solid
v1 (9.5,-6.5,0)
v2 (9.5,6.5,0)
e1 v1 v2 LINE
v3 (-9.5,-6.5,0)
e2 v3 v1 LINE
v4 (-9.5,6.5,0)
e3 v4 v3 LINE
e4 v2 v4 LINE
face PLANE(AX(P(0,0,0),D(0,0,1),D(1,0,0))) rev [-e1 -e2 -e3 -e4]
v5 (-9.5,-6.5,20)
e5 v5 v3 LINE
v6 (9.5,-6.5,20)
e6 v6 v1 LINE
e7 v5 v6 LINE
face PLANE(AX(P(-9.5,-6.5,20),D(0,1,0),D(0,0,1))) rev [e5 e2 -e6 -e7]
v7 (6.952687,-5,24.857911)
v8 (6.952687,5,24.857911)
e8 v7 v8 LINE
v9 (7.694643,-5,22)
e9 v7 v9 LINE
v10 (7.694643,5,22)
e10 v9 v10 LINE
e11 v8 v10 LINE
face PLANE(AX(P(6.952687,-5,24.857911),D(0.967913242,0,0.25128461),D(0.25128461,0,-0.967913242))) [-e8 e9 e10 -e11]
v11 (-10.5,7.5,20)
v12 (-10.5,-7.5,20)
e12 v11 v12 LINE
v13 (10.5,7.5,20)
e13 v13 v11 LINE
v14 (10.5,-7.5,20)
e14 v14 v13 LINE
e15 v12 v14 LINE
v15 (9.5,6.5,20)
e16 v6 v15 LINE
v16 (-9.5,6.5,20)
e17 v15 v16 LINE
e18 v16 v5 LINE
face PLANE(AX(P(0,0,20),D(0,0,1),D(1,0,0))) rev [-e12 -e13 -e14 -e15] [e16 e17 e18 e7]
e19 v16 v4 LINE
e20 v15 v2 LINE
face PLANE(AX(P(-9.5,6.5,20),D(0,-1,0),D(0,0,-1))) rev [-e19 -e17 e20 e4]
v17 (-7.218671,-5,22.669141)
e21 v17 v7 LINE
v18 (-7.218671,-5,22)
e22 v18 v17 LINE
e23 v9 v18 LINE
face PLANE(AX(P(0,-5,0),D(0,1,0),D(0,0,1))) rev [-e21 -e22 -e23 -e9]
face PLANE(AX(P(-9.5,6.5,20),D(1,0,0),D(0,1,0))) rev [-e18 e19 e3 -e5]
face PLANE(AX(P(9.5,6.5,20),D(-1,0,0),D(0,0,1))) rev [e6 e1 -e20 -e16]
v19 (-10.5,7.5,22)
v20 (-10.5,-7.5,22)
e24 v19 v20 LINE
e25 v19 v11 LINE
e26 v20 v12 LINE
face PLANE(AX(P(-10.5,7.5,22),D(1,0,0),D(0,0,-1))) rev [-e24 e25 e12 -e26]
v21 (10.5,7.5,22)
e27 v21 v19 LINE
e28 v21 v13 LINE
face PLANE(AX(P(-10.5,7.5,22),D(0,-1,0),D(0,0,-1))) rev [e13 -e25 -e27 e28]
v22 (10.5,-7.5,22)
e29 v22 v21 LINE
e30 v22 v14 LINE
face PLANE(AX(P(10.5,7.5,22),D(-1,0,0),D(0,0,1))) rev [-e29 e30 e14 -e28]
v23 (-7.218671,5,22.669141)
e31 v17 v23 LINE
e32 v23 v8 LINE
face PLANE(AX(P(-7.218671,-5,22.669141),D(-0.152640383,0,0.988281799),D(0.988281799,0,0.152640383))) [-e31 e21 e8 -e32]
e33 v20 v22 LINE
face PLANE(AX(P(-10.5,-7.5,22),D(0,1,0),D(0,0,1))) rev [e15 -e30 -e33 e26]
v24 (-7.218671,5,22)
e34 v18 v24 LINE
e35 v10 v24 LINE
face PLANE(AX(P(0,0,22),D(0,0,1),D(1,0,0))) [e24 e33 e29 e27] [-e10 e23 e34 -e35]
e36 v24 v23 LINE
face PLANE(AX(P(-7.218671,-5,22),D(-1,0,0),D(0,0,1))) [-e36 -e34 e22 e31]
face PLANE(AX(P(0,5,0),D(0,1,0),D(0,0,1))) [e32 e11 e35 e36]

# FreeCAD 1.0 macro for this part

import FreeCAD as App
import Part
import Sketcher
from FreeCAD import Vector
Q = App.Units.Quantity

doc = App.newDocument("Part")
params = doc.addObject("Spreadsheet::Sheet", "Params")
for row, (alias, value) in enumerate([
    ("sketch1_width", "19 mm"),
    ("sketch1_height", "13 mm"),
    ("pad1_length", "20 mm"),
    ("sketch2_width", "21 mm"),
    ("sketch2_height", "15 mm"),
    ("pad2_length", "2 mm"),
    ("pad3_length", "5 mm"),
    ("pad3_length2", "5 mm"),
], start=1):
    params.set(f"A{row}", alias)
    params.set(f"B{row}", "=" + value)
    params.setAlias(f"B{row}", alias)

body = doc.addObject("PartDesign::Body", "Body")

# Sketch on XY plane
sketch1 = doc.addObject("Sketcher::SketchObject", "Sketch")
body.addObject(sketch1)
sketch1.AttachmentSupport = (doc.XY_Plane, [""])
sketch1.MapMode = "FlatFace"
sketch1.addGeometry(Part.LineSegment(Vector(-10, 6, 0), Vector(-10, -6, 0)), False)
sketch1.addGeometry(Part.LineSegment(Vector(-10, -6, 0), Vector(10, -6, 0)), False)
sketch1.addGeometry(Part.LineSegment(Vector(10, -6, 0), Vector(10, 6, 0)), False)
sketch1.addGeometry(Part.LineSegment(Vector(10, 6, 0), Vector(-10, 6, 0)), False)
sketch1.addConstraint(Sketcher.Constraint("Coincident", 0, 2, 1, 1))
sketch1.addConstraint(Sketcher.Constraint("Coincident", 1, 2, 2, 1))
sketch1.addConstraint(Sketcher.Constraint("Coincident", 2, 2, 3, 1))
sketch1.addConstraint(Sketcher.Constraint("Coincident", 3, 2, 0, 1))
sketch1.addConstraint(Sketcher.Constraint("Vertical", 0))
sketch1.addConstraint(Sketcher.Constraint("Horizontal", 1))
sketch1.addConstraint(Sketcher.Constraint("Vertical", 2))
sketch1.addConstraint(Sketcher.Constraint("Horizontal", 3))
sketch1.addConstraint(Sketcher.Constraint("Symmetric", 0, 2, 2, 2, -1, 1))
sketch1.addConstraint(Sketcher.Constraint("DistanceX", 1, 1, 1, 2, Q("19 mm")))
sketch1.addConstraint(Sketcher.Constraint("DistanceY", 0, 2, 0, 1, Q("13 mm")))
sketch1.setExpression("Constraints[9]", "Params.sketch1_width")
sketch1.setExpression("Constraints[10]", "Params.sketch1_height")
pad1 = doc.addObject("PartDesign::Pad", "Pad")
body.addObject(pad1)
pad1.Profile = sketch1
pad1.setExpression("Length", "Params.pad1_length")

# Sketch on XY plane
sketch2 = doc.addObject("Sketcher::SketchObject", "Sketch001")
body.addObject(sketch2)
sketch2.AttachmentSupport = (doc.XY_Plane, [""])
sketch2.MapMode = "FlatFace"
sketch2.AttachmentOffset = App.Placement(Vector(0, 0, 20), App.Rotation())
sketch2.addGeometry(Part.LineSegment(Vector(-10, 8, 0), Vector(-10, -8, 0)), False)
sketch2.addGeometry(Part.LineSegment(Vector(-10, -8, 0), Vector(10, -8, 0)), False)
sketch2.addGeometry(Part.LineSegment(Vector(10, -8, 0), Vector(10, 8, 0)), False)
sketch2.addGeometry(Part.LineSegment(Vector(10, 8, 0), Vector(-10, 8, 0)), False)
sketch2.addConstraint(Sketcher.Constraint("Coincident", 0, 2, 1, 1))
sketch2.addConstraint(Sketcher.Constraint("Coincident", 1, 2, 2, 1))
sketch2.addConstraint(Sketcher.Constraint("Coincident", 2, 2, 3, 1))
sketch2.addConstraint(Sketcher.Constraint("Coincident", 3, 2, 0, 1))
sketch2.addConstraint(Sketcher.Constraint("Vertical", 0))
sketch2.addConstraint(Sketcher.Constraint("Horizontal", 1))
sketch2.addConstraint(Sketcher.Constraint("Vertical", 2))
sketch2.addConstraint(Sketcher.Constraint("Horizontal", 3))
sketch2.addConstraint(Sketcher.Constraint("Symmetric", 0, 2, 2, 2, -1, 1))
sketch2.addConstraint(Sketcher.Constraint("DistanceX", 1, 1, 1, 2, Q("21 mm")))
sketch2.addConstraint(Sketcher.Constraint("DistanceY", 0, 2, 0, 1, Q("15 mm")))
sketch2.setExpression("Constraints[9]", "Params.sketch2_width")
sketch2.setExpression("Constraints[10]", "Params.sketch2_height")
pad2 = doc.addObject("PartDesign::Pad", "Pad001")
body.addObject(pad2)
pad2.Profile = sketch2
pad2.setExpression("Length", "Params.pad2_length")

# Sketch on XZ plane
sketch3 = doc.addObject("Sketcher::SketchObject", "Sketch002")
body.addObject(sketch3)
sketch3.AttachmentSupport = (doc.XZ_Plane, [""])
sketch3.MapMode = "FlatFace"
sketch3.addGeometry(Part.LineSegment(Vector(-7.2, 22, 0), Vector(-7.2, 22.7, 0)), False)
sketch3.addGeometry(Part.LineSegment(Vector(-7.2, 22.7, 0), Vector(7, 24.9, 0)), False)
sketch3.addGeometry(Part.LineSegment(Vector(7, 24.9, 0), Vector(7.7, 22, 0)), False)
sketch3.addGeometry(Part.LineSegment(Vector(7.7, 22, 0), Vector(-7.2, 22, 0)), False)
sketch3.addConstraint(Sketcher.Constraint("Coincident", 0, 2, 1, 1))
sketch3.addConstraint(Sketcher.Constraint("Coincident", 1, 2, 2, 1))
sketch3.addConstraint(Sketcher.Constraint("Coincident", 2, 2, 3, 1))
sketch3.addConstraint(Sketcher.Constraint("Coincident", 3, 2, 0, 1))
sketch3.addConstraint(Sketcher.Constraint("Vertical", 0))
sketch3.addConstraint(Sketcher.Constraint("Horizontal", 3))
sketch3.addConstraint(Sketcher.Constraint("DistanceY", -1, 1, 2, 2, Q("22 mm")))
sketch3.addConstraint(Sketcher.Constraint("DistanceY", 0, 1, 0, 2, Q("0.669141 mm")))
sketch3.addConstraint(Sketcher.Constraint("Distance", 1, Q("14.33939 mm")))
sketch3.addConstraint(Sketcher.Constraint("Distance", 2, Q("2.952652 mm")))
sketch3.addConstraint(Sketcher.Constraint("DistanceX", 3, 2, 3, 1, Q("14.913314 mm")))
sketch3.addConstraint(Sketcher.Constraint("DistanceX", 0, 2, -1, 1, Q("7.218671 mm")))
pad3 = doc.addObject("PartDesign::Pad", "Pad002")
body.addObject(pad3)
pad3.Profile = sketch3
pad3.Type = "TwoLengths"
pad3.setExpression("Length", "Params.pad3_length")
pad3.setExpression("Length2", "Params.pad3_length2")
pad3.Reversed = True

doc.recompute()
